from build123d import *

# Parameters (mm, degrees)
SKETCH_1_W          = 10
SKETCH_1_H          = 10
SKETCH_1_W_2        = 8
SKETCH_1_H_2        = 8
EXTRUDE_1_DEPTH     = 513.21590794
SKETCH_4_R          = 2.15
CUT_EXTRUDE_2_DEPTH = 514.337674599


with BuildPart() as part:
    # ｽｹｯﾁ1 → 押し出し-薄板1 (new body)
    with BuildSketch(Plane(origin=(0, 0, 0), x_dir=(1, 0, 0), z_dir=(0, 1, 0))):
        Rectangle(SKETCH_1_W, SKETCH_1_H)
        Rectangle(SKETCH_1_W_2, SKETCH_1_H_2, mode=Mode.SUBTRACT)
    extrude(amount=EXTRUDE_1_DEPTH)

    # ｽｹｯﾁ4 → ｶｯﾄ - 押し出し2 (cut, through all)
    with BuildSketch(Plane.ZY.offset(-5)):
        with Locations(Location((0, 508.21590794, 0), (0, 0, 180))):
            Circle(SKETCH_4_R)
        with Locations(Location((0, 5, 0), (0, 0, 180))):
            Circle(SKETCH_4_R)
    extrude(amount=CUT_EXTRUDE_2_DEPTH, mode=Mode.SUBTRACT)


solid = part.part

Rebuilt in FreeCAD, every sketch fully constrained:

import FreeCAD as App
import Part
import Sketcher
Q = App.Units.Quantity


def add_polygon(sketch, points):
    """Adds a closed chain of lines whose ends are joined by coincident constraints."""
    first, n = sketch.GeometryCount, len(points)
    for a, b in zip(points, points[1:] + points[:1]):
        sketch.addGeometry(Part.LineSegment(App.Vector(*a, 0), App.Vector(*b, 0)), False)
    for i in range(n):
        sketch.addConstraint(Sketcher.Constraint("Coincident", first + i, 2, first + (i + 1) % n, 1))

doc = App.newDocument("Part")
body = doc.addObject("PartDesign::Body", "Body")

# Sketch on XZ plane
sketch1 = body.newObject("Sketcher::SketchObject", "Sketch")
sketch1.AttachmentSupport = (doc.getObject("XZ_Plane"), [""])
sketch1.MapMode = "FlatFace"
add_polygon(sketch1, [(-5, -5), (-5, 5), (5, 5), (5, -5)])  # lines 0-3
add_polygon(sketch1, [(4, 4), (-4, 4), (-4, -4), (4, -4)])  # lines 4-7
sketch1.addConstraint([
    Sketcher.Constraint("Vertical", 0),
    Sketcher.Constraint("Horizontal", 1),
    Sketcher.Constraint("Vertical", 2),
    Sketcher.Constraint("Horizontal", 3),
    Sketcher.Constraint("Horizontal", 4),
    Sketcher.Constraint("Vertical", 5),
    Sketcher.Constraint("Horizontal", 6),
    Sketcher.Constraint("Vertical", 7),
    Sketcher.Constraint("Symmetric", 0, 2, 2, 2, -1, 1),
    Sketcher.Constraint("Symmetric", 4, 2, 6, 2, -1, 1),
    Sketcher.Constraint("Equal", 3, 0),
    Sketcher.Constraint("Equal", 6, 5),
    Sketcher.Constraint("DistanceX", 1, 1, 1, 2, Q("10 mm")),
    Sketcher.Constraint("DistanceX", 4, 2, 4, 1, Q("8 mm")),
])
pad1 = body.newObject("PartDesign::Pad", "Pad")
pad1.Profile = sketch1
pad1.Length = 513.215908
pad1.Reversed = True

# Sketch on YZ plane
sketch2 = body.newObject("Sketcher::SketchObject", "Sketch001")
sketch2.AttachmentSupport = (doc.getObject("YZ_Plane"), [""])
sketch2.MapMode = "FlatFace"
sketch2.AttachmentOffset = App.Placement(App.Vector(0, 0, 5), App.Rotation())
sketch2.addGeometry([
    Part.Circle(App.Vector(508.2, 0, 0), App.Vector(0, 0, 1), 2.1),
    Part.Circle(App.Vector(5, 0, 0), App.Vector(0, 0, 1), 2.1),
], False)
sketch2.addConstraint([
    Sketcher.Constraint("Equal", 0, 1),
    Sketcher.Constraint("PointOnObject", 0, 3, -1),
    Sketcher.Constraint("PointOnObject", 1, 3, -1),
    Sketcher.Constraint("Diameter", 0, Q("4.3 mm")),
    Sketcher.Constraint("DistanceX", -1, 1, 1, 3, Q("5 mm")),
    Sketcher.Constraint("DistanceX", -1, 1, 0, 3, Q("508.215908 mm")),
])
pocket1 = body.newObject("PartDesign::Pocket", "Pocket")
pocket1.Profile = sketch2
pocket1.Type = "ThroughAll"

doc.recompute()
